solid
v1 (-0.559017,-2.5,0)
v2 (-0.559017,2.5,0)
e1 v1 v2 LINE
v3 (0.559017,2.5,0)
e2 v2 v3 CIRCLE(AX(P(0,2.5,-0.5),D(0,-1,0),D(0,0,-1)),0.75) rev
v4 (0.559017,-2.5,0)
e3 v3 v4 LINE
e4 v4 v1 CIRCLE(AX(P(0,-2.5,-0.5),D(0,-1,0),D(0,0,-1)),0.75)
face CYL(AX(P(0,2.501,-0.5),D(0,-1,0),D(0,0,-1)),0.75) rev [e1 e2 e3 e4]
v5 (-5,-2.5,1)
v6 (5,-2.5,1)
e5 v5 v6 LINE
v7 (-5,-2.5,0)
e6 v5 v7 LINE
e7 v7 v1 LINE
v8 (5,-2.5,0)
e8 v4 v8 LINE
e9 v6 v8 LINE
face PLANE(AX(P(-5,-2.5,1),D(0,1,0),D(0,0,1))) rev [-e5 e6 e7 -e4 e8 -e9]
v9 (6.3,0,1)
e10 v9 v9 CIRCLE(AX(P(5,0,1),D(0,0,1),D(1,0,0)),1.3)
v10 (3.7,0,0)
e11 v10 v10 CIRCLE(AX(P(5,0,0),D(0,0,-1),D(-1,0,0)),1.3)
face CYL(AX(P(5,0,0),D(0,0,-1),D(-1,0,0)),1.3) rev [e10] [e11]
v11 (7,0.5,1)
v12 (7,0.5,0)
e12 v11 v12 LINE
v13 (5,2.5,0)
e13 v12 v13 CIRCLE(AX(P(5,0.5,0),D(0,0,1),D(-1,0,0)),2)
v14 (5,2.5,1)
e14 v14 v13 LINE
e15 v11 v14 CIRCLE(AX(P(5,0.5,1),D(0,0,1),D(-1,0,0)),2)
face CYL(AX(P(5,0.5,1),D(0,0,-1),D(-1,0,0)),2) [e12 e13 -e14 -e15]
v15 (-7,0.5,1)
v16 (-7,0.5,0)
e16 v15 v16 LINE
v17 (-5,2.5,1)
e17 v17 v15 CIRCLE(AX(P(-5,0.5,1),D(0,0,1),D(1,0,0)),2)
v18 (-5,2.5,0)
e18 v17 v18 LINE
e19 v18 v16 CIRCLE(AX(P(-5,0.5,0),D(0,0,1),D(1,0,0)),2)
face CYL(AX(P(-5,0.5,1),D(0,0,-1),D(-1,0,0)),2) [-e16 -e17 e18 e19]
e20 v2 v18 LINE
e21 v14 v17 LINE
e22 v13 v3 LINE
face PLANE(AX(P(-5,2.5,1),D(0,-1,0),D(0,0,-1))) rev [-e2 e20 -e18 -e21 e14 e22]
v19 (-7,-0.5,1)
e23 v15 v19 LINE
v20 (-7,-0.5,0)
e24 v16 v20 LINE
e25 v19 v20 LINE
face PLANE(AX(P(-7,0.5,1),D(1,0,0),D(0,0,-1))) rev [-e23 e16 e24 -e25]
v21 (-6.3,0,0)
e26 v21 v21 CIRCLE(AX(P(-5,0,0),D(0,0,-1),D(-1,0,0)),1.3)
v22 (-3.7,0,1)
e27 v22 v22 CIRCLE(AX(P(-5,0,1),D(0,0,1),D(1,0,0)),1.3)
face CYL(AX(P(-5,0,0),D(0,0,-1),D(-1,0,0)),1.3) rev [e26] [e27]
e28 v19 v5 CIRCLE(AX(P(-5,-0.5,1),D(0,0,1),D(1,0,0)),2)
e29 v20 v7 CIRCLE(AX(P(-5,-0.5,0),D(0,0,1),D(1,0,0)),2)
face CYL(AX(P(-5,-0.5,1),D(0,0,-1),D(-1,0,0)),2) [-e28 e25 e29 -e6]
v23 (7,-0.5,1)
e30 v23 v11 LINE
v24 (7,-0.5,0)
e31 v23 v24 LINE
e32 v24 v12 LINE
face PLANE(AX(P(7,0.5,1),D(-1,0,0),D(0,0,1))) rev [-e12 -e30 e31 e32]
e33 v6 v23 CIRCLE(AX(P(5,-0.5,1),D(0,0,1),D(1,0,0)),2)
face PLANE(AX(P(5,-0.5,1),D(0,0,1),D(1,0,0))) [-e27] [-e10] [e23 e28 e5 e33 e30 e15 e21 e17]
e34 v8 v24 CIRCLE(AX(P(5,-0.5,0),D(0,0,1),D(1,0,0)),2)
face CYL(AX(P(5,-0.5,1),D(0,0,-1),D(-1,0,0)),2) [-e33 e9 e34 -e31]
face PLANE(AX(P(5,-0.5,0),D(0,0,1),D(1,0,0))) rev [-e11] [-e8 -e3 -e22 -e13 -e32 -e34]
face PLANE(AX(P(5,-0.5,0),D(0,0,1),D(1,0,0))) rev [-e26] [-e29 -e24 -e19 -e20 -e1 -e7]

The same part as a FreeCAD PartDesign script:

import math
import FreeCAD as App
import Part
import Sketcher
from FreeCAD import Vector

doc = App.newDocument("Part")
body = doc.addObject("PartDesign::Body", "Body")

# Sketch on XY plane
sketch1 = body.newObject("Sketcher::SketchObject", "Sketch")
sketch1.AttachmentSupport = (doc.getObject("XY_Plane"), [""])
sketch1.MapMode = "FlatFace"
sketch1.addGeometry([
    Part.LineSegment(Vector(5, 2.5, 0), Vector(-5, 2.5, 0)),  # 0
    Part.ArcOfCircle(Part.Circle(Vector(-5, 0.5, 0), Vector(0, 0, 1), 2), math.radians(90), math.radians(180)),  # 1
    Part.LineSegment(Vector(-7, 0.5, 0), Vector(-7, -0.5, 0)),  # 2
    Part.ArcOfCircle(Part.Circle(Vector(-5, -0.5, 0), Vector(0, 0, 1), 2), math.radians(-180), math.radians(-90)),  # 3
    Part.LineSegment(Vector(-5, -2.5, 0), Vector(5, -2.5, 0)),  # 4
    Part.ArcOfCircle(Part.Circle(Vector(5, -0.5, 0), Vector(0, 0, 1), 2), math.radians(-90), math.radians(0)),  # 5
    Part.LineSegment(Vector(7, -0.5, 0), Vector(7, 0.5, 0)),  # 6
    Part.ArcOfCircle(Part.Circle(Vector(5, 0.5, 0), Vector(0, 0, 1), 2), math.radians(0), math.radians(90)),  # 7
], False)
sketch1.addConstraint([
    Sketcher.Constraint("Tangent", 0, 2, 1, 1),
    Sketcher.Constraint("Tangent", 1, 2, 2, 1),
    Sketcher.Constraint("Tangent", 2, 2, 3, 1),
    Sketcher.Constraint("Tangent", 3, 2, 4, 1),
    Sketcher.Constraint("Tangent", 4, 2, 5, 1),
    Sketcher.Constraint("Tangent", 5, 2, 6, 1),
    Sketcher.Constraint("Tangent", 6, 2, 7, 1),
    Sketcher.Constraint("Tangent", 7, 2, 0, 1),
    Sketcher.Constraint("Horizontal", 0),
    Sketcher.Constraint("Vertical", 2),
    Sketcher.Constraint("Horizontal", 4),
    Sketcher.Constraint("Vertical", 6),
    Sketcher.Constraint("Equal", 1, 3),
    Sketcher.Constraint("Equal", 3, 5),
    Sketcher.Constraint("Equal", 5, 7),
    Sketcher.Constraint("Symmetric", 1, 3, 5, 3, -1, 1),
    Sketcher.Constraint("Radius", 1, 2.0),
    Sketcher.Constraint("DistanceX", 0, 2, 0, 1, 10.0),
    Sketcher.Constraint("DistanceY", 2, 2, 2, 1, 1.0),
])
pad1 = body.newObject("PartDesign::Pad", "Pad")
pad1.Profile = sketch1
pad1.Length = 1

# Sketch on XY plane
sketch2 = body.newObject("Sketcher::SketchObject", "Sketch001")
sketch2.AttachmentSupport = (doc.getObject("XY_Plane"), [""])
sketch2.MapMode = "FlatFace"
sketch2.addGeometry([
    Part.Circle(Vector(5, 0, 0), Vector(0, 0, 1), 1.3),
    Part.Circle(Vector(-5, 0, 0), Vector(0, 0, 1), 1.3),
], False)
sketch2.addConstraint([
    Sketcher.Constraint("Equal", 0, 1),
    Sketcher.Constraint("Symmetric", 0, 3, 1, 3, -1, 1),
    Sketcher.Constraint("PointOnObject", 0, 3, -1),
    Sketcher.Constraint("Diameter", 0, 2.6),
    Sketcher.Constraint("DistanceX", -1, 1, 0, 3, 5.0),
])
doc.recompute()
hole = body.newObject("PartDesign::Hole", "Hole")
hole.Profile = sketch2
hole.ThreadType = "None"
hole.Diameter = 2.6
hole.DepthType = "Dimension"
hole.Depth = 1
hole.DrillPoint = "Flat"
hole.Reversed = True

# Sketch on XZ plane
sketch3 = body.newObject("Sketcher::SketchObject", "Sketch002")
sketch3.AttachmentSupport = (doc.getObject("XZ_Plane"), [""])
sketch3.MapMode = "FlatFace"
sketch3.AttachmentOffset = App.Placement(Vector(0, 0, 2.5), App.Rotation())
sketch3.addGeometry(Part.Circle(Vector(0, -0.5, 0), Vector(0, 0, 1), 0.8), False)
sketch3.addConstraint([
    Sketcher.Constraint("PointOnObject", 0, 3, -2),
    Sketcher.Constraint("Diameter", 0, 1.5),
    Sketcher.Constraint("DistanceY", 0, 3, -1, 1, 0.5),
])
pocket1 = body.newObject("PartDesign::Pocket", "Pocket")
pocket1.Profile = sketch3
pocket1.Length = 5

doc.recompute()
